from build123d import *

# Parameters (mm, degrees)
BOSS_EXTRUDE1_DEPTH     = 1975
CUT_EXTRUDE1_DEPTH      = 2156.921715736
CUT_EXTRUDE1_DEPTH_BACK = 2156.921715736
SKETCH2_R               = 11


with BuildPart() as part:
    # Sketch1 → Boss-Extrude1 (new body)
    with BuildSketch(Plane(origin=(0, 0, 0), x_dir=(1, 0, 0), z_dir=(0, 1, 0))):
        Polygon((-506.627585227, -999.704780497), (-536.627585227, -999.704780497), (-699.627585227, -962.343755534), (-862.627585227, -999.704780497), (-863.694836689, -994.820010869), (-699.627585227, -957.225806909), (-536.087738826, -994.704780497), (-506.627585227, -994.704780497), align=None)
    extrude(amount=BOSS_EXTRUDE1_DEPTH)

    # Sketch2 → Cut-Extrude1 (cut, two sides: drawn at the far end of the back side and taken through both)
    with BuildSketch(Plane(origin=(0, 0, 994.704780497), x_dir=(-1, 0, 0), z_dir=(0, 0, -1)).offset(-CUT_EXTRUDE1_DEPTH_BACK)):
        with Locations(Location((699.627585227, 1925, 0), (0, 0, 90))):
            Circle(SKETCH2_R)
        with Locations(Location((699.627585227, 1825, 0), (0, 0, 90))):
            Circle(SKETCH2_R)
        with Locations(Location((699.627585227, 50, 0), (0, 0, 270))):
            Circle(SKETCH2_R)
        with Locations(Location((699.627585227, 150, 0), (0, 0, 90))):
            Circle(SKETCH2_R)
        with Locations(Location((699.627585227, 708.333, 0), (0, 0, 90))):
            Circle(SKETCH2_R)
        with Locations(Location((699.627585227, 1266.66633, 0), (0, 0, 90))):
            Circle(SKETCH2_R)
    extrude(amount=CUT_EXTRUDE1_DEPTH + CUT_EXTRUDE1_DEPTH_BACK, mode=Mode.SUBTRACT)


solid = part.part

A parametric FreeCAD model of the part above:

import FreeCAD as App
import Part
import Sketcher


def add_polygon(sketch, points):
    """Adds a closed chain of lines whose ends are joined by coincident constraints."""
    first, n = sketch.GeometryCount, len(points)
    for a, b in zip(points, points[1:] + points[:1]):
        sketch.addGeometry(Part.LineSegment(App.Vector(*a, 0), App.Vector(*b, 0)), False)
    for i in range(n):
        sketch.addConstraint(Sketcher.Constraint("Coincident", first + i, 2, first + (i + 1) % n, 1))

doc = App.newDocument("Part")
body = doc.addObject("PartDesign::Body", "Body")

# Sketch on XZ plane
sketch1 = body.newObject("Sketcher::SketchObject", "Sketch")
sketch1.AttachmentSupport = (doc.getObject("XZ_Plane"), [""])
sketch1.MapMode = "FlatFace"
add_polygon(sketch1, [(-537, 1000), (-507, 1000), (-507, 995), (-536, 995), (-700, 957), (-864, 995), (-863, 1000), (-700, 962)])  # lines 0-7
sketch1.addConstraint(Sketcher.Constraint("Horizontal", 0))
sketch1.addConstraint(Sketcher.Constraint("Vertical", 1))
sketch1.addConstraint(Sketcher.Constraint("Horizontal", 2))
sketch1.addConstraint(Sketcher.Constraint("Horizontal", 0, 2, 5, 2))
sketch1.addConstraint(Sketcher.Constraint("Vertical", 3, 2, 6, 2))
sketch1.addConstraint(Sketcher.Constraint("Equal", 6, 7))
sketch1.addConstraint(Sketcher.Constraint("DistanceX", 0, 1, 0, 2, 30.0))
sketch1.addConstraint(Sketcher.Constraint("DistanceY", 1, 2, 1, 1, 5.0))
sketch1.addConstraint(Sketcher.Constraint("Distance", 5, 5.0))
sketch1.addConstraint(Sketcher.Constraint("DistanceX", 3, 2, 1, 2, 193.0))
sketch1.addConstraint(Sketcher.Constraint("Distance", 4, 168.319301))
sketch1.addConstraint(Sketcher.Constraint("Distance", 6, 167.22693))
sketch1.addConstraint(Sketcher.Constraint("DistanceX", 2, 2, 2, 1, 29.460154))
sketch1.addConstraint(Sketcher.Constraint("DistanceY", -1, 1, 0, 2, 999.70478))
sketch1.addConstraint(Sketcher.Constraint("DistanceX", 2, 2, -1, 1, 536.087739))
sketch1.addConstraint(Sketcher.Constraint("DistanceY", -1, 1, 4, 2, 994.820011))
pad1 = body.newObject("PartDesign::Pad", "Pad")
pad1.Profile = sketch1
pad1.Length = 1975
pad1.Reversed = True

# Sketch on XY plane
sketch2 = body.newObject("Sketcher::SketchObject", "Sketch001")
sketch2.AttachmentSupport = (doc.getObject("XY_Plane"), [""])
sketch2.MapMode = "FlatFace"
sketch2.AttachmentOffset = App.Placement(App.Vector(0, 0, 994.70478), App.Rotation())
sketch2.addGeometry(Part.Circle(App.Vector(-700, 1925, 0), App.Vector(0, 0, 1), 11), False)
sketch2.addGeometry(Part.Circle(App.Vector(-700, 1825, 0), App.Vector(0, 0, 1), 11), False)
sketch2.addGeometry(Part.Circle(App.Vector(-700, 50, 0), App.Vector(0, 0, 1), 11), False)
sketch2.addGeometry(Part.Circle(App.Vector(-700, 150, 0), App.Vector(0, 0, 1), 11), False)
sketch2.addGeometry(Part.Circle(App.Vector(-700, 708, 0), App.Vector(0, 0, 1), 11), False)
sketch2.addGeometry(Part.Circle(App.Vector(-700, 1267, 0), App.Vector(0, 0, 1), 11), False)
sketch2.addConstraint(Sketcher.Constraint("Equal", 0, 1))
sketch2.addConstraint(Sketcher.Constraint("Equal", 1, 2))
sketch2.addConstraint(Sketcher.Constraint("Equal", 2, 3))
sketch2.addConstraint(Sketcher.Constraint("Equal", 3, 4))
sketch2.addConstraint(Sketcher.Constraint("Equal", 4, 5))
sketch2.addConstraint(Sketcher.Constraint("Vertical", 0, 3, 1, 3))
sketch2.addConstraint(Sketcher.Constraint("Vertical", 1, 3, 2, 3))
sketch2.addConstraint(Sketcher.Constraint("Vertical", 2, 3, 3, 3))
sketch2.addConstraint(Sketcher.Constraint("Vertical", 3, 3, 4, 3))
sketch2.addConstraint(Sketcher.Constraint("Vertical", 4, 3, 5, 3))
sketch2.addConstraint(Sketcher.Constraint("Diameter", 0, 22.0))
sketch2.addConstraint(Sketcher.Constraint("DistanceY", -1, 1, 0, 3, 1925.0))
sketch2.addConstraint(Sketcher.Constraint("DistanceY", -1, 1, 1, 3, 1825.0))
sketch2.addConstraint(Sketcher.Constraint("DistanceY", -1, 1, 2, 3, 50.0))
sketch2.addConstraint(Sketcher.Constraint("DistanceY", -1, 1, 3, 3, 150.0))
sketch2.addConstraint(Sketcher.Constraint("DistanceY", -1, 1, 4, 3, 708.333))
sketch2.addConstraint(Sketcher.Constraint("DistanceY", -1, 1, 5, 3, 1266.66633))
sketch2.addConstraint(Sketcher.Constraint("DistanceX", 0, 3, -1, 1, 699.627585))
pocket1 = body.newObject("PartDesign::Pocket", "Pocket")
pocket1.Profile = sketch2
pocket1.Type = "ThroughAll"
pocket1.Midplane = True

doc.recompute()
